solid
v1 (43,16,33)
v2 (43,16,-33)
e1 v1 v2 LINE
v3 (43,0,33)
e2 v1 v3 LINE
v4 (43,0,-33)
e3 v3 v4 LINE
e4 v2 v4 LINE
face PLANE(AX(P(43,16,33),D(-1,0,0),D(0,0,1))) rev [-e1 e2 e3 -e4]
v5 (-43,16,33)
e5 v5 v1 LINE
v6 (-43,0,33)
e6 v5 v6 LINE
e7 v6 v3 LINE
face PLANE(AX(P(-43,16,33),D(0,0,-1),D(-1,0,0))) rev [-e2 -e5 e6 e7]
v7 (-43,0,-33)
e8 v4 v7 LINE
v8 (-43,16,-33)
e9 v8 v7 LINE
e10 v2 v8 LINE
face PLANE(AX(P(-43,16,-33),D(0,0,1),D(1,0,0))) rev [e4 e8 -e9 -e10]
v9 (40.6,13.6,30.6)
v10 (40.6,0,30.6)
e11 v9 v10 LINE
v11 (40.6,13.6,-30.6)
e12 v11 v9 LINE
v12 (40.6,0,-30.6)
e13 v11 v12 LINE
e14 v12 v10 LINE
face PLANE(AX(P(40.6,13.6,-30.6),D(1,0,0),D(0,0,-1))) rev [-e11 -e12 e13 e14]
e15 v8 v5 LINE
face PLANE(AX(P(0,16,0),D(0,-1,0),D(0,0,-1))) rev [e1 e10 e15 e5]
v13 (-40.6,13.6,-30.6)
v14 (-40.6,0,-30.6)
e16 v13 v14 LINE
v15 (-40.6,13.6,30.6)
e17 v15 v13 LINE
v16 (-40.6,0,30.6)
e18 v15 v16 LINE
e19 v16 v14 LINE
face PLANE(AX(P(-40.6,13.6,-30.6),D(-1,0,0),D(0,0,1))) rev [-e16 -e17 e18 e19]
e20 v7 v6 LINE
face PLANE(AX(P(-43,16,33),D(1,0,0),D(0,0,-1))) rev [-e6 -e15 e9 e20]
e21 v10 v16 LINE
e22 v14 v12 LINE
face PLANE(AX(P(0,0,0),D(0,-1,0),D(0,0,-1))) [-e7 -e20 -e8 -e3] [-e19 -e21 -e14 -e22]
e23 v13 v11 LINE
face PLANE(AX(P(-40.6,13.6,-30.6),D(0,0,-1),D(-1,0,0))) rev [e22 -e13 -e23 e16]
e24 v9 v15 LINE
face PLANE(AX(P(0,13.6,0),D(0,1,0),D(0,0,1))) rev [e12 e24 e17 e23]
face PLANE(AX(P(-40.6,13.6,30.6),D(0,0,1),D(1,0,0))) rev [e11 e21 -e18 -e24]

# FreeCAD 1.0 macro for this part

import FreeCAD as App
import Part
import Sketcher
Q = App.Units.Quantity


def add_polygon(sketch, points):
    """Adds a closed chain of lines whose ends are joined by coincident constraints."""
    first, n = sketch.GeometryCount, len(points)
    for a, b in zip(points, points[1:] + points[:1]):
        sketch.addGeometry(Part.LineSegment(App.Vector(*a, 0), App.Vector(*b, 0)), False)
    for i in range(n):
        sketch.addConstraint(Sketcher.Constraint("Coincident", first + i, 2, first + (i + 1) % n, 1))

doc = App.newDocument("Part")
body = doc.addObject("PartDesign::Body", "Body")

sketch1 = body.newObject("Sketcher::SketchObject", "Sketch")
sketch1.AttachmentSupport = (doc.getObject("XZ_Plane"), [""])
sketch1.MapMode = "FlatFace"
add_polygon(sketch1, [(-43, -33), (-43, 33), (43, 33), (43, -33)])
sketch1.addConstraint([
    Sketcher.Constraint("Vertical", 0),
    Sketcher.Constraint("Horizontal", 1),
    Sketcher.Constraint("Vertical", 2),
    Sketcher.Constraint("Horizontal", 3),
    Sketcher.Constraint("Symmetric", 0, 2, 2, 2, -1, 1),
    Sketcher.Constraint("DistanceX", 1, 1, 1, 2, Q("86 mm")),
    Sketcher.Constraint("DistanceY", 0, 1, 0, 2, Q("66 mm")),
])
pad1 = body.newObject("PartDesign::Pad", "Pad")
pad1.Profile = sketch1
pad1.Length = 16
pad1.Reversed = True

sketch2 = body.newObject("Sketcher::SketchObject", "Sketch001")
sketch2.AttachmentSupport = (doc.getObject("XZ_Plane"), [""])
sketch2.MapMode = "FlatFace"
add_polygon(sketch2, [(-41, 31), (-41, -31), (41, -31), (41, 31)])
sketch2.addConstraint([
    Sketcher.Constraint("Vertical", 0),
    Sketcher.Constraint("Horizontal", 1),
    Sketcher.Constraint("Vertical", 2),
    Sketcher.Constraint("Horizontal", 3),
    Sketcher.Constraint("Symmetric", 0, 2, 2, 2, -1, 1),
    Sketcher.Constraint("DistanceX", 1, 1, 1, 2, Q("81.2 mm")),
    Sketcher.Constraint("DistanceY", 0, 2, 0, 1, Q("61.2 mm")),
])
pocket1 = body.newObject("PartDesign::Pocket", "Pocket")
pocket1.Profile = sketch2
pocket1.Length = 13.6

doc.recompute()
